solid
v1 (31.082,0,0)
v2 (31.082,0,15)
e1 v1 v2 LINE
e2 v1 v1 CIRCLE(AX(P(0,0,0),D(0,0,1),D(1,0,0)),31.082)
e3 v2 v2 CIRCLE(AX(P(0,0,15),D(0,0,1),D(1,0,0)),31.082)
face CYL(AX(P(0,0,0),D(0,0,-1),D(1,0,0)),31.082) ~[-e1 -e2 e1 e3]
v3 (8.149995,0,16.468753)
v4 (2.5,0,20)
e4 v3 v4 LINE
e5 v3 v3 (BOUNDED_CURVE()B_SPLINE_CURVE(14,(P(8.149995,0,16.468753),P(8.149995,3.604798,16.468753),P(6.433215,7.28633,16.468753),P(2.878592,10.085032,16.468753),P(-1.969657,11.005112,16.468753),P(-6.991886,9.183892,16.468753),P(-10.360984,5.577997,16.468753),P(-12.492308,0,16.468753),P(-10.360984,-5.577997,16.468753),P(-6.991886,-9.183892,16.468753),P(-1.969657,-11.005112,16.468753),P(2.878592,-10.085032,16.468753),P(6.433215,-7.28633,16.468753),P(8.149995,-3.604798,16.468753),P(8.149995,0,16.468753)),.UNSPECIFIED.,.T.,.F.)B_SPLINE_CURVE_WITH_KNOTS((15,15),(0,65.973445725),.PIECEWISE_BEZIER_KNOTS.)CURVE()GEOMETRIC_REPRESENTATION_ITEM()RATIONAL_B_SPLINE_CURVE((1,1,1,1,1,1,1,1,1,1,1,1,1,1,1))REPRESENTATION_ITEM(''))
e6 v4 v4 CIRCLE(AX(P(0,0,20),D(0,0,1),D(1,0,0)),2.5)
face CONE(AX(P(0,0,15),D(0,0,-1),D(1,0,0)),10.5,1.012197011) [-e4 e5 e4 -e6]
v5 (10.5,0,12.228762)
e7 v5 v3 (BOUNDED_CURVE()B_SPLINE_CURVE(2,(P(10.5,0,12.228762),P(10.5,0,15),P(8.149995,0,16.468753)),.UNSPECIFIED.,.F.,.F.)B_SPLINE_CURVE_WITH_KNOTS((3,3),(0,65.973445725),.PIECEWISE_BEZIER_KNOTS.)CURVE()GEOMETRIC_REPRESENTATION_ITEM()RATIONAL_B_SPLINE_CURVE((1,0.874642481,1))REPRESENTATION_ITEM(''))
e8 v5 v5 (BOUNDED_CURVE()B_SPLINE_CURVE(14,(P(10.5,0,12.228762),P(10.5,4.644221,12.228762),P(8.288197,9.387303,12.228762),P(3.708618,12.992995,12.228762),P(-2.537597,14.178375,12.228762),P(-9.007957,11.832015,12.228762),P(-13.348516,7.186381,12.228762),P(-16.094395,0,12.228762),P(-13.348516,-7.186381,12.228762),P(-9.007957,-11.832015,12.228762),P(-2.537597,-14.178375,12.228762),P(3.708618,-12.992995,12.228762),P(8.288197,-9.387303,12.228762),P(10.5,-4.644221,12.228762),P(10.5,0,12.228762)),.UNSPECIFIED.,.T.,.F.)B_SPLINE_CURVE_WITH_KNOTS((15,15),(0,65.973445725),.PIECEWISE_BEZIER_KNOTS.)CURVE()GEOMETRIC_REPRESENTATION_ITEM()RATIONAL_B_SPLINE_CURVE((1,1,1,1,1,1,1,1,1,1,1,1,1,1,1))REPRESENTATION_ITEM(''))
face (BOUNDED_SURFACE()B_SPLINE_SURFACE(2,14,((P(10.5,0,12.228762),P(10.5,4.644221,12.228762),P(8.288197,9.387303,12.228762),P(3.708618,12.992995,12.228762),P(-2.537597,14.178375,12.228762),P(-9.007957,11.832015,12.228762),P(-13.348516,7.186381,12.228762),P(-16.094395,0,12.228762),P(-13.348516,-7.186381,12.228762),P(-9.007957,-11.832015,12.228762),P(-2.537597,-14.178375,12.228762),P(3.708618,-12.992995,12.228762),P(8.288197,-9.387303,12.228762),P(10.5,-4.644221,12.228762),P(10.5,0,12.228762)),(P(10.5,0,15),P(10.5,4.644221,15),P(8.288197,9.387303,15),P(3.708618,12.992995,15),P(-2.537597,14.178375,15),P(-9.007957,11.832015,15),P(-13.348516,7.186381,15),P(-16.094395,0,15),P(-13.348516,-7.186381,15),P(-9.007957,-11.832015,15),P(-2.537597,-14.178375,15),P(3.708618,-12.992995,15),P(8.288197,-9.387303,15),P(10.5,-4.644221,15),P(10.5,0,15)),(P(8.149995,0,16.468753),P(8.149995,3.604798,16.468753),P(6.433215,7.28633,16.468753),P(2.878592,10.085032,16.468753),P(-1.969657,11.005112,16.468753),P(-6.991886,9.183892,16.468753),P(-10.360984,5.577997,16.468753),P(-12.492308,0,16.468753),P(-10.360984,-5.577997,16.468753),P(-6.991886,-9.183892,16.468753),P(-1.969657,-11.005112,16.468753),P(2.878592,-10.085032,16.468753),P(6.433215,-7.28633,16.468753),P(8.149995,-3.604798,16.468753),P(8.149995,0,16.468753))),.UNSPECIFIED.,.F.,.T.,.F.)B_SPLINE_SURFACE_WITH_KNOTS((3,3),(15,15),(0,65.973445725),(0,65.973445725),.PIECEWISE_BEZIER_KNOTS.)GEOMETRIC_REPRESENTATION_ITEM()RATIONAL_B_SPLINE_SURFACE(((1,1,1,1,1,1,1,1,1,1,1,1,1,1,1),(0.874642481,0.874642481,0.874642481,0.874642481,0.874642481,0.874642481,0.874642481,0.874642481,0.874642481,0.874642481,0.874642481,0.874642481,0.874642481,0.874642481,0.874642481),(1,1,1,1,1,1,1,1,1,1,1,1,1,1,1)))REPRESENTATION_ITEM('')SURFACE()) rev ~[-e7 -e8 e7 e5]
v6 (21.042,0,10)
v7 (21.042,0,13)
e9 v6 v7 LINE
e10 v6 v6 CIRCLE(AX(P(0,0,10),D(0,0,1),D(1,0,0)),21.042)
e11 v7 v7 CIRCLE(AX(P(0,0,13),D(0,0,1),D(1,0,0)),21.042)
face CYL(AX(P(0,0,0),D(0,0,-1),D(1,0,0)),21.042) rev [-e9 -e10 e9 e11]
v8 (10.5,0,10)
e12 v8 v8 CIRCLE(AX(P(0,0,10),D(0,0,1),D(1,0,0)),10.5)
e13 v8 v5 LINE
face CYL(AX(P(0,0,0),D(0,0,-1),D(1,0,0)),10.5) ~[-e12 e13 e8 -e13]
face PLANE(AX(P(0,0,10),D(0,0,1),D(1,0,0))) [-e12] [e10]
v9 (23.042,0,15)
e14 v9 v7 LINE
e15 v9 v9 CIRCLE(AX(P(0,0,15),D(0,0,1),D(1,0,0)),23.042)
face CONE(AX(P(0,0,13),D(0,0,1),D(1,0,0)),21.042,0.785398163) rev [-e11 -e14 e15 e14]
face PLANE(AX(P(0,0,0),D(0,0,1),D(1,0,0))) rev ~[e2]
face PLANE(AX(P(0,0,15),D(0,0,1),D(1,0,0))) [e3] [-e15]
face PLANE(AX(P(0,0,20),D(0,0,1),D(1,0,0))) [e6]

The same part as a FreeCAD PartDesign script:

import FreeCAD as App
import Part
import Sketcher
Q = App.Units.Quantity


def edges_at(feature, points):
    """Names of the edges that pass closest to the given points."""
    edges = feature.Shape.Edges
    near = lambda p: min(range(len(edges)), key=lambda i: edges[i].distToShape(Part.Vertex(*p))[0])
    return sorted({f"Edge{near(p) + 1}" for p in points})


def add_polygon(sketch, points):
    """Adds a closed chain of lines whose ends are joined by coincident constraints."""
    first, n = sketch.GeometryCount, len(points)
    for a, b in zip(points, points[1:] + points[:1]):
        sketch.addGeometry(Part.LineSegment(App.Vector(*a, 0), App.Vector(*b, 0)), False)
    for i in range(n):
        sketch.addConstraint(Sketcher.Constraint("Coincident", first + i, 2, first + (i + 1) % n, 1))

doc = App.newDocument("Part")
body = doc.addObject("PartDesign::Body", "Body")

sketch1 = doc.addObject("Sketcher::SketchObject", "Sketch")
body.addObject(sketch1)
sketch1.AttachmentSupport = (doc.XY_Plane, [""])
sketch1.MapMode = "FlatFace"
sketch1.addGeometry(Part.Circle(App.Vector(0, 0, 0), App.Vector(0, 0, 1), 10), False)
sketch1.addConstraint(Sketcher.Constraint("Coincident", 0, 3, -1, 1))
sketch1.addConstraint(Sketcher.Constraint("Diameter", 0, Q("21 mm")))
pad1 = doc.addObject("PartDesign::Pad", "Pad")
body.addObject(pad1)
pad1.Profile = sketch1
pad1.Length = 15

sketch2 = doc.addObject("Sketcher::SketchObject", "Sketch001")
body.addObject(sketch2)
sketch2.AttachmentSupport = (doc.XZ_Plane, [""])
sketch2.MapMode = "FlatFace"
add_polygon(sketch2, [(0, 15), (10.5, 15), (2.5, 20), (0, 20)])
sketch2.addConstraint(Sketcher.Constraint("Horizontal", 0))
sketch2.addConstraint(Sketcher.Constraint("Horizontal", 2))
sketch2.addConstraint(Sketcher.Constraint("Vertical", 3))
sketch2.addConstraint(Sketcher.Constraint("PointOnObject", 2, 2, -2))
sketch2.addConstraint(Sketcher.Constraint("DistanceY", 3, 2, 3, 1, Q("5 mm")))
sketch2.addConstraint(Sketcher.Constraint("DistanceX", 0, 1, 0, 2, Q("10.5 mm")))
sketch2.addConstraint(Sketcher.Constraint("DistanceX", 2, 2, 2, 1, Q("2.5 mm")))
sketch2.addConstraint(Sketcher.Constraint("DistanceY", -1, 1, 0, 2, Q("15 mm")))
revolution = doc.addObject("PartDesign::Revolution", "Revolution")
body.addObject(revolution)
revolution.Profile = sketch2
revolution.ReferenceAxis = (sketch2, ["V_Axis"])
revolution.Angle = 360

sketch3 = doc.addObject("Sketcher::SketchObject", "Sketch002")
body.addObject(sketch3)
sketch3.AttachmentSupport = (doc.XY_Plane, [""])
sketch3.MapMode = "FlatFace"
sketch3.addGeometry(Part.Circle(App.Vector(0, 0, 0), App.Vector(0, 0, 1), 21), False)
sketch3.addGeometry(Part.Circle(App.Vector(0, 0, 0), App.Vector(0, 0, 1), 10), False)
sketch3.addConstraint(Sketcher.Constraint("Coincident", 0, 3, -1, 1))
sketch3.addConstraint(Sketcher.Constraint("Coincident", 1, 3, -1, 1))
sketch3.addConstraint(Sketcher.Constraint("Diameter", 1, Q("21 mm")))
sketch3.addConstraint(Sketcher.Constraint("Diameter", 0, Q("42.084 mm")))
pad2 = doc.addObject("PartDesign::Pad", "Pad001")
body.addObject(pad2)
pad2.Profile = sketch3
pad2.Length = 10

sketch4 = doc.addObject("Sketcher::SketchObject", "Sketch003")
body.addObject(sketch4)
sketch4.AttachmentSupport = (doc.XY_Plane, [""])
sketch4.MapMode = "FlatFace"
sketch4.addGeometry(Part.Circle(App.Vector(0, 0, 0), App.Vector(0, 0, 1), 31), False)
sketch4.addGeometry(Part.Circle(App.Vector(0, 0, 0), App.Vector(0, 0, 1), 21), False)
sketch4.addConstraint(Sketcher.Constraint("Coincident", 0, 3, -1, 1))
sketch4.addConstraint(Sketcher.Constraint("Coincident", 1, 3, -1, 1))
sketch4.addConstraint(Sketcher.Constraint("Diameter", 0, Q("62.164 mm")))
sketch4.addConstraint(Sketcher.Constraint("Diameter", 1, Q("42.084 mm")))
pad3 = doc.addObject("PartDesign::Pad", "Pad002")
body.addObject(pad3)
pad3.Profile = sketch4
pad3.Length = 15
doc.recompute()

chamfer = doc.addObject("PartDesign::Chamfer", "Chamfer")
body.addObject(chamfer)
chamfer.Base = (pad3, edges_at(pad3, [(-21.042, 0, 15)]))
chamfer.Size = 2
doc.recompute()

fillet = doc.addObject("PartDesign::Fillet", "Fillet")
body.addObject(fillet)
fillet.Base = (chamfer, edges_at(chamfer, [(-10.5, 0, 15)]))
fillet.Radius = 5

doc.recompute()
